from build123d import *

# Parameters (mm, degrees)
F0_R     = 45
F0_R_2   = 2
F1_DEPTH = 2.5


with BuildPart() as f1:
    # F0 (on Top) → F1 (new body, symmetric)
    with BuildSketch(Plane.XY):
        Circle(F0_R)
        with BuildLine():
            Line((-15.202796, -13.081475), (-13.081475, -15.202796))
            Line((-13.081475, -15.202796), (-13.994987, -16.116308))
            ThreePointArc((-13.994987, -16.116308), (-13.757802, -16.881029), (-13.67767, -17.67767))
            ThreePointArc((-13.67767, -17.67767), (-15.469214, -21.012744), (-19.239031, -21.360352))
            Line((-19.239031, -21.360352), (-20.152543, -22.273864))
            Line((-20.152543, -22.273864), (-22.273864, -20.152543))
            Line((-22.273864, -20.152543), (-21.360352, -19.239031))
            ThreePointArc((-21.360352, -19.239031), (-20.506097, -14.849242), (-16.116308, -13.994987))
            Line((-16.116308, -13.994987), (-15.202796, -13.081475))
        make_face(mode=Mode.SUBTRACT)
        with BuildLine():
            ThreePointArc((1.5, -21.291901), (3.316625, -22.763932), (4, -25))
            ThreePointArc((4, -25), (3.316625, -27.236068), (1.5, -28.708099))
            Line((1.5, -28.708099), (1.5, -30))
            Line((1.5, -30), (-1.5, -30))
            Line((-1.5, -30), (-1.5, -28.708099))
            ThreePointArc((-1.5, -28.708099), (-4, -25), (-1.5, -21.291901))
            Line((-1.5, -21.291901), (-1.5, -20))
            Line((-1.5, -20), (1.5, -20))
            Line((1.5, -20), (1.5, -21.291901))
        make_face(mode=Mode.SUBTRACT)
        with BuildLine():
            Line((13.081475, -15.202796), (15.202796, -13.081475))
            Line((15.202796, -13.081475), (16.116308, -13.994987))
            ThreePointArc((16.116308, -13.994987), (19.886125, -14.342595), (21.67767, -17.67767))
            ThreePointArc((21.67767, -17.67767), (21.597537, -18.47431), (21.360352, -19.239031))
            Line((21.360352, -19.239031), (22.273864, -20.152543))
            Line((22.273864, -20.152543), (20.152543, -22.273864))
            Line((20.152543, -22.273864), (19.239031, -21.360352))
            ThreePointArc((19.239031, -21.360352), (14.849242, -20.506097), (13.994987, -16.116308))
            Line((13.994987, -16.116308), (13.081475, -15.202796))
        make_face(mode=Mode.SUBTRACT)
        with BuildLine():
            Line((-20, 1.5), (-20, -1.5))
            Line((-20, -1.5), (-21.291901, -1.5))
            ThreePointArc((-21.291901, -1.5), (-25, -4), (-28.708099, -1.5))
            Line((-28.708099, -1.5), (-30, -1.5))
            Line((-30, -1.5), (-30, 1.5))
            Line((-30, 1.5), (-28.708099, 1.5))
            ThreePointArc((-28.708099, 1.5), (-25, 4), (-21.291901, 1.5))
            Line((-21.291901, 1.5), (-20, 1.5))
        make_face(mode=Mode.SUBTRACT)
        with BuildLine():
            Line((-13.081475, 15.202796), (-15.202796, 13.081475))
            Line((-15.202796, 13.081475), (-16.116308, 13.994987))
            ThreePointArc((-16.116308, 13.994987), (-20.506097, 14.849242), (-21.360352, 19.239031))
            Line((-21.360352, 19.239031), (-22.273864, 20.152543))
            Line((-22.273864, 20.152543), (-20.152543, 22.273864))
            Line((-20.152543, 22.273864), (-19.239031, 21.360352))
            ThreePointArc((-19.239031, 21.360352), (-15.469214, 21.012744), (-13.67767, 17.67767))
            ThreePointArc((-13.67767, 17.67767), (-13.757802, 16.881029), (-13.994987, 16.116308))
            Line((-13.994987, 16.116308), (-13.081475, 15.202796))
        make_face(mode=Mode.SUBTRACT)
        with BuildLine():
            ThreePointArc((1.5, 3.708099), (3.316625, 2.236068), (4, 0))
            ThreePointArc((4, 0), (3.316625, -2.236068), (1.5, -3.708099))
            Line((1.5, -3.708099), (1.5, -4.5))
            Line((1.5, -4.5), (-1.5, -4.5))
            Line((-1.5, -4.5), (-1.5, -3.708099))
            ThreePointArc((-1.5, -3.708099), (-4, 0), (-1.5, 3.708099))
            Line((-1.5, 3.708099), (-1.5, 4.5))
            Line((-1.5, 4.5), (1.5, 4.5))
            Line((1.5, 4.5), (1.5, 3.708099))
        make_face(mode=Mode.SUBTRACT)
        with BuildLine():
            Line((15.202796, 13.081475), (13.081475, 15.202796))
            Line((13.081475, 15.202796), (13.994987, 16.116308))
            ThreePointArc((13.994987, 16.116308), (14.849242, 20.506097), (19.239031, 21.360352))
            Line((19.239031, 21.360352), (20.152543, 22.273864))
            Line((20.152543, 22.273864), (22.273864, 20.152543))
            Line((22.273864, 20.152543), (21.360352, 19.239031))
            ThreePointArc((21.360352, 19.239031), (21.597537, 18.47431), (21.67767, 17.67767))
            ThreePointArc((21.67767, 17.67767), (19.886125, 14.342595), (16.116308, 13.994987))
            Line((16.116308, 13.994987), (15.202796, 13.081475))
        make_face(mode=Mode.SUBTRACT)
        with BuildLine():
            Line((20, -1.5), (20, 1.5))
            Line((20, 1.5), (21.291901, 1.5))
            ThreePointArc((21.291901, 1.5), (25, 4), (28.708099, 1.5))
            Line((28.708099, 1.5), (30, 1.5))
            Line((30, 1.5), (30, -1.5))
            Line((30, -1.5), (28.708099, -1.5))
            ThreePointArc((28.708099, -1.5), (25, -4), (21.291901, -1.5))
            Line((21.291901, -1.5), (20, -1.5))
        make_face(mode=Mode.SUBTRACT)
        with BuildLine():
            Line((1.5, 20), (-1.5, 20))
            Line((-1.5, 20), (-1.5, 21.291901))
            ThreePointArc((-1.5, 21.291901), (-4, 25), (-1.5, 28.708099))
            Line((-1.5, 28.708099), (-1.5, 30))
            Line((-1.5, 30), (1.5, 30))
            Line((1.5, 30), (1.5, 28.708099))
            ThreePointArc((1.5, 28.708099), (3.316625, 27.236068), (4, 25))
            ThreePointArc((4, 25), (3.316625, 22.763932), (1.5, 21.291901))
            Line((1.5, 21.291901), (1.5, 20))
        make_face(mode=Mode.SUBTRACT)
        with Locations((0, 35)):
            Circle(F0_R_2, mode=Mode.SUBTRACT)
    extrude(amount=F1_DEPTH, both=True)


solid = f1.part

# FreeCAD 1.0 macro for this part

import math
import FreeCAD as App
import Part
import Sketcher

doc = App.newDocument("Part")
body = doc.addObject("PartDesign::Body", "Body")

# Sketch on XY plane
sketch1 = body.newObject("Sketcher::SketchObject", "Sketch")
sketch1.AttachmentSupport = (doc.getObject("XY_Plane"), [""])
sketch1.MapMode = "FlatFace"
sketch1.addGeometry([
    Part.Circle(App.Vector(0, 0, 0), App.Vector(0, 0, 1), 45),  # 0
    Part.LineSegment(App.Vector(-16.1, -14, 0), App.Vector(-15.2, -13.1, 0)),  # 1
    Part.LineSegment(App.Vector(-15.2, -13.1, 0), App.Vector(-13.1, -15.2, 0)),  # 2
    Part.LineSegment(App.Vector(-13.1, -15.2, 0), App.Vector(-14, -16.1, 0)),  # 3
    Part.ArcOfCircle(Part.Circle(App.Vector(-17.7, -17.7, 0), App.Vector(0, 0, 1), 4), math.radians(0), math.radians(23)),  # 4
    Part.ArcOfCircle(Part.Circle(App.Vector(-17.7, -17.7, 0), App.Vector(0, 0, 1), 4), math.radians(-113), math.radians(0)),  # 5
    Part.LineSegment(App.Vector(-19.2, -21.4, 0), App.Vector(-20.2, -22.3, 0)),  # 6
    Part.LineSegment(App.Vector(-20.2, -22.3, 0), App.Vector(-22.3, -20.2, 0)),  # 7
    Part.LineSegment(App.Vector(-22.3, -20.2, 0), App.Vector(-21.4, -19.2, 0)),  # 8
    Part.ArcOfCircle(Part.Circle(App.Vector(-17.7, -17.7, 0), App.Vector(0, 0, 1), 4), math.radians(67), math.radians(203)),  # 9
    Part.LineSegment(App.Vector(-21.3, 1.5, 0), App.Vector(-20, 1.5, 0)),  # 10
    Part.LineSegment(App.Vector(-20, 1.5, 0), App.Vector(-20, -1.5, 0)),  # 11
    Part.LineSegment(App.Vector(-20, -1.5, 0), App.Vector(-21.3, -1.5, 0)),  # 12
    Part.ArcOfCircle(Part.Circle(App.Vector(-25, 0, 0), App.Vector(0, 0, 1), 4), math.radians(-158), math.radians(-22)),  # 13
    Part.LineSegment(App.Vector(-28.7, -1.5, 0), App.Vector(-30, -1.5, 0)),  # 14
    Part.LineSegment(App.Vector(-30, -1.5, 0), App.Vector(-30, 1.5, 0)),  # 15
    Part.LineSegment(App.Vector(-30, 1.5, 0), App.Vector(-28.7, 1.5, 0)),  # 16
    Part.ArcOfCircle(Part.Circle(App.Vector(-25, 0, 0), App.Vector(0, 0, 1), 4), math.radians(22), math.radians(158)),  # 17
    Part.LineSegment(App.Vector(1.5, -20, 0), App.Vector(1.5, -21.3, 0)),  # 18
    Part.ArcOfCircle(Part.Circle(App.Vector(0, -25, 0), App.Vector(0, 0, 1), 4), math.radians(0), math.radians(68)),  # 19
    Part.ArcOfCircle(Part.Circle(App.Vector(0, -25, 0), App.Vector(0, 0, 1), 4), math.radians(-68), math.radians(0)),  # 20
    Part.LineSegment(App.Vector(1.5, -28.7, 0), App.Vector(1.5, -30, 0)),  # 21
    Part.LineSegment(App.Vector(1.5, -30, 0), App.Vector(-1.5, -30, 0)),  # 22
    Part.LineSegment(App.Vector(-1.5, -30, 0), App.Vector(-1.5, -28.7, 0)),  # 23
    Part.ArcOfCircle(Part.Circle(App.Vector(0, -25, 0), App.Vector(0, 0, 1), 4), math.radians(112), math.radians(248)),  # 24
    Part.LineSegment(App.Vector(-1.5, -21.3, 0), App.Vector(-1.5, -20, 0)),  # 25
    Part.LineSegment(App.Vector(-1.5, -20, 0), App.Vector(1.5, -20, 0)),  # 26
    Part.LineSegment(App.Vector(14, -16.1, 0), App.Vector(13.1, -15.2, 0)),  # 27
    Part.LineSegment(App.Vector(13.1, -15.2, 0), App.Vector(15.2, -13.1, 0)),  # 28
    Part.LineSegment(App.Vector(15.2, -13.1, 0), App.Vector(16.1, -14, 0)),  # 29
    Part.ArcOfCircle(Part.Circle(App.Vector(17.7, -17.7, 0), App.Vector(0, 0, 1), 4), math.radians(0), math.radians(113)),  # 30
    Part.ArcOfCircle(Part.Circle(App.Vector(17.7, -17.7, 0), App.Vector(0, 0, 1), 4), math.radians(-23), math.radians(0)),  # 31
    Part.LineSegment(App.Vector(21.4, -19.2, 0), App.Vector(22.3, -20.2, 0)),  # 32
    Part.LineSegment(App.Vector(22.3, -20.2, 0), App.Vector(20.2, -22.3, 0)),  # 33
    Part.LineSegment(App.Vector(20.2, -22.3, 0), App.Vector(19.2, -21.4, 0)),  # 34
    Part.ArcOfCircle(Part.Circle(App.Vector(17.7, -17.7, 0), App.Vector(0, 0, 1), 4), math.radians(157), math.radians(293)),  # 35
    Part.LineSegment(App.Vector(1.5, 4.5, 0), App.Vector(1.5, 3.7, 0)),  # 36
    Part.ArcOfCircle(Part.Circle(App.Vector(0, 0, 0), App.Vector(0, 0, 1), 4), math.radians(0), math.radians(68)),  # 37
    Part.ArcOfCircle(Part.Circle(App.Vector(0, 0, 0), App.Vector(0, 0, 1), 4), math.radians(-68), math.radians(0)),  # 38
    Part.LineSegment(App.Vector(1.5, -3.7, 0), App.Vector(1.5, -4.5, 0)),  # 39
    Part.LineSegment(App.Vector(1.5, -4.5, 0), App.Vector(-1.5, -4.5, 0)),  # 40
    Part.LineSegment(App.Vector(-1.5, -4.5, 0), App.Vector(-1.5, -3.7, 0)),  # 41
    Part.ArcOfCircle(Part.Circle(App.Vector(0, 0, 0), App.Vector(0, 0, 1), 4), math.radians(112), math.radians(248)),  # 42
    Part.LineSegment(App.Vector(-1.5, 3.7, 0), App.Vector(-1.5, 4.5, 0)),  # 43
    Part.LineSegment(App.Vector(-1.5, 4.5, 0), App.Vector(1.5, 4.5, 0)),  # 44
    Part.LineSegment(App.Vector(21.3, -1.5, 0), App.Vector(20, -1.5, 0)),  # 45
    Part.LineSegment(App.Vector(20, -1.5, 0), App.Vector(20, 1.5, 0)),  # 46
    Part.LineSegment(App.Vector(20, 1.5, 0), App.Vector(21.3, 1.5, 0)),  # 47
    Part.ArcOfCircle(Part.Circle(App.Vector(25, 0, 0), App.Vector(0, 0, 1), 4), math.radians(22), math.radians(158)),  # 48
    Part.LineSegment(App.Vector(28.7, 1.5, 0), App.Vector(30, 1.5, 0)),  # 49
    Part.LineSegment(App.Vector(30, 1.5, 0), App.Vector(30, -1.5, 0)),  # 50
    Part.LineSegment(App.Vector(30, -1.5, 0), App.Vector(28.7, -1.5, 0)),  # 51
    Part.ArcOfCircle(Part.Circle(App.Vector(25, 0, 0), App.Vector(0, 0, 1), 4), math.radians(-158), math.radians(-22)),  # 52
    Part.LineSegment(App.Vector(-14, 16.1, 0), App.Vector(-13.1, 15.2, 0)),  # 53
    Part.LineSegment(App.Vector(-13.1, 15.2, 0), App.Vector(-15.2, 13.1, 0)),  # 54
    Part.LineSegment(App.Vector(-15.2, 13.1, 0), App.Vector(-16.1, 14, 0)),  # 55
    Part.ArcOfCircle(Part.Circle(App.Vector(-17.7, 17.7, 0), App.Vector(0, 0, 1), 4), math.radians(157), math.radians(293)),  # 56
    Part.LineSegment(App.Vector(-21.4, 19.2, 0), App.Vector(-22.3, 20.2, 0)),  # 57
    Part.LineSegment(App.Vector(-22.3, 20.2, 0), App.Vector(-20.2, 22.3, 0)),  # 58
    Part.LineSegment(App.Vector(-20.2, 22.3, 0), App.Vector(-19.2, 21.4, 0)),  # 59
    Part.ArcOfCircle(Part.Circle(App.Vector(-17.7, 17.7, 0), App.Vector(0, 0, 1), 4), math.radians(0), math.radians(113)),  # 60
    Part.ArcOfCircle(Part.Circle(App.Vector(-17.7, 17.7, 0), App.Vector(0, 0, 1), 4), math.radians(-23), math.radians(0)),  # 61
    Part.LineSegment(App.Vector(16.1, 14, 0), App.Vector(15.2, 13.1, 0)),  # 62
    Part.LineSegment(App.Vector(15.2, 13.1, 0), App.Vector(13.1, 15.2, 0)),  # 63
    Part.LineSegment(App.Vector(13.1, 15.2, 0), App.Vector(14, 16.1, 0)),  # 64
    Part.ArcOfCircle(Part.Circle(App.Vector(17.7, 17.7, 0), App.Vector(0, 0, 1), 4), math.radians(67), math.radians(203)),  # 65
    Part.LineSegment(App.Vector(19.2, 21.4, 0), App.Vector(20.2, 22.3, 0)),  # 66
    Part.LineSegment(App.Vector(20.2, 22.3, 0), App.Vector(22.3, 20.2, 0)),  # 67
    Part.LineSegment(App.Vector(22.3, 20.2, 0), App.Vector(21.4, 19.2, 0)),  # 68
    Part.ArcOfCircle(Part.Circle(App.Vector(17.7, 17.7, 0), App.Vector(0, 0, 1), 4), math.radians(0), math.radians(23)),  # 69
    Part.ArcOfCircle(Part.Circle(App.Vector(17.7, 17.7, 0), App.Vector(0, 0, 1), 4), math.radians(-113), math.radians(0)),  # 70
    Part.LineSegment(App.Vector(1.5, 21.3, 0), App.Vector(1.5, 20, 0)),  # 71
    Part.LineSegment(App.Vector(1.5, 20, 0), App.Vector(-1.5, 20, 0)),  # 72
    Part.LineSegment(App.Vector(-1.5, 20, 0), App.Vector(-1.5, 21.3, 0)),  # 73
    Part.ArcOfCircle(Part.Circle(App.Vector(0, 25, 0), App.Vector(0, 0, 1), 4), math.radians(112), math.radians(248)),  # 74
    Part.LineSegment(App.Vector(-1.5, 28.7, 0), App.Vector(-1.5, 30, 0)),  # 75
    Part.LineSegment(App.Vector(-1.5, 30, 0), App.Vector(1.5, 30, 0)),  # 76
    Part.LineSegment(App.Vector(1.5, 30, 0), App.Vector(1.5, 28.7, 0)),  # 77
    Part.ArcOfCircle(Part.Circle(App.Vector(0, 25, 0), App.Vector(0, 0, 1), 4), math.radians(0), math.radians(68)),  # 78
    Part.ArcOfCircle(Part.Circle(App.Vector(0, 25, 0), App.Vector(0, 0, 1), 4), math.radians(-68), math.radians(0)),  # 79
    Part.Circle(App.Vector(0, 35, 0), App.Vector(0, 0, 1), 2),  # 80
], False)
sketch1.addConstraint([
    Sketcher.Constraint("Coincident", 1, 2, 2, 1),
    Sketcher.Constraint("Coincident", 2, 2, 3, 1),
    Sketcher.Constraint("Coincident", 3, 2, 4, 2),
    Sketcher.Constraint("Tangent", 4, 1, 5, 2),
    Sketcher.Constraint("Coincident", 5, 1, 6, 1),
    Sketcher.Constraint("Coincident", 6, 2, 7, 1),
    Sketcher.Constraint("Coincident", 7, 2, 8, 1),
    Sketcher.Constraint("Coincident", 8, 2, 9, 2),
    Sketcher.Constraint("Coincident", 9, 1, 1, 1),
    Sketcher.Constraint("Coincident", 10, 2, 11, 1),
    Sketcher.Constraint("Coincident", 11, 2, 12, 1),
    Sketcher.Constraint("Coincident", 12, 2, 13, 2),
    Sketcher.Constraint("Coincident", 13, 1, 14, 1),
    Sketcher.Constraint("Coincident", 14, 2, 15, 1),
    Sketcher.Constraint("Coincident", 15, 2, 16, 1),
    Sketcher.Constraint("Coincident", 16, 2, 17, 2),
    Sketcher.Constraint("Coincident", 17, 1, 10, 1),
    Sketcher.Constraint("Coincident", 18, 2, 19, 2),
    Sketcher.Constraint("Tangent", 19, 1, 20, 2),
    Sketcher.Constraint("Coincident", 20, 1, 21, 1),
    Sketcher.Constraint("Coincident", 21, 2, 22, 1),
    Sketcher.Constraint("Coincident", 22, 2, 23, 1),
    Sketcher.Constraint("Coincident", 23, 2, 24, 2),
    Sketcher.Constraint("Coincident", 24, 1, 25, 1),
    Sketcher.Constraint("Coincident", 25, 2, 26, 1),
    Sketcher.Constraint("Coincident", 26, 2, 18, 1),
    Sketcher.Constraint("Coincident", 27, 2, 28, 1),
    Sketcher.Constraint("Coincident", 28, 2, 29, 1),
    Sketcher.Constraint("Coincident", 29, 2, 30, 2),
    Sketcher.Constraint("Coincident", 30, 1, 31, 2),
    Sketcher.Constraint("Coincident", 31, 1, 32, 1),
    Sketcher.Constraint("Coincident", 32, 2, 33, 1),
    Sketcher.Constraint("Coincident", 33, 2, 34, 1),
    Sketcher.Constraint("Coincident", 34, 2, 35, 2),
    Sketcher.Constraint("Coincident", 35, 1, 27, 1),
    Sketcher.Constraint("Coincident", 36, 2, 37, 2),
    Sketcher.Constraint("Tangent", 37, 1, 38, 2),
    Sketcher.Constraint("Coincident", 38, 1, 39, 1),
    Sketcher.Constraint("Coincident", 39, 2, 40, 1),
    Sketcher.Constraint("Coincident", 40, 2, 41, 1),
    Sketcher.Constraint("Coincident", 41, 2, 42, 2),
    Sketcher.Constraint("Coincident", 42, 1, 43, 1),
    Sketcher.Constraint("Coincident", 43, 2, 44, 1),
    Sketcher.Constraint("Coincident", 44, 2, 36, 1),
    Sketcher.Constraint("Coincident", 45, 2, 46, 1),
    Sketcher.Constraint("Coincident", 46, 2, 47, 1),
    Sketcher.Constraint("Coincident", 47, 2, 48, 2),
    Sketcher.Constraint("Coincident", 48, 1, 49, 1),
    Sketcher.Constraint("Coincident", 49, 2, 50, 1),
    Sketcher.Constraint("Coincident", 50, 2, 51, 1),
    Sketcher.Constraint("Coincident", 51, 2, 52, 2),
    Sketcher.Constraint("Coincident", 52, 1, 45, 1),
    Sketcher.Constraint("Coincident", 53, 2, 54, 1),
    Sketcher.Constraint("Coincident", 54, 2, 55, 1),
    Sketcher.Constraint("Coincident", 55, 2, 56, 2),
    Sketcher.Constraint("Coincident", 56, 1, 57, 1),
    Sketcher.Constraint("Coincident", 57, 2, 58, 1),
    Sketcher.Constraint("Coincident", 58, 2, 59, 1),
    Sketcher.Constraint("Coincident", 59, 2, 60, 2),
    Sketcher.Constraint("Tangent", 60, 1, 61, 2),
    Sketcher.Constraint("Coincident", 61, 1, 53, 1),
    Sketcher.Constraint("Coincident", 62, 2, 63, 1),
    Sketcher.Constraint("Coincident", 63, 2, 64, 1),
    Sketcher.Constraint("Coincident", 64, 2, 65, 2),
    Sketcher.Constraint("Coincident", 65, 1, 66, 1),
    Sketcher.Constraint("Coincident", 66, 2, 67, 1),
    Sketcher.Constraint("Coincident", 67, 2, 68, 1),
    Sketcher.Constraint("Coincident", 68, 2, 69, 2),
    Sketcher.Constraint("Coincident", 69, 1, 70, 2),
    Sketcher.Constraint("Coincident", 70, 1, 62, 1),
    Sketcher.Constraint("Coincident", 71, 2, 72, 1),
    Sketcher.Constraint("Coincident", 72, 2, 73, 1),
    Sketcher.Constraint("Coincident", 73, 2, 74, 2),
    Sketcher.Constraint("Coincident", 74, 1, 75, 1),
    Sketcher.Constraint("Coincident", 75, 2, 76, 1),
    Sketcher.Constraint("Coincident", 76, 2, 77, 1),
    Sketcher.Constraint("Coincident", 77, 2, 78, 2),
    Sketcher.Constraint("Tangent", 78, 1, 79, 2),
    Sketcher.Constraint("Coincident", 79, 1, 71, 1),
    Sketcher.Constraint("Horizontal", 10),
    Sketcher.Constraint("Vertical", 11),
    Sketcher.Constraint("Horizontal", 12),
    Sketcher.Constraint("Horizontal", 14),
    Sketcher.Constraint("Vertical", 15),
    Sketcher.Constraint("Horizontal", 16),
    Sketcher.Constraint("Vertical", 18),
    Sketcher.Constraint("Vertical", 21),
    Sketcher.Constraint("Horizontal", 22),
    Sketcher.Constraint("Vertical", 23),
    Sketcher.Constraint("Vertical", 25),
    Sketcher.Constraint("Horizontal", 26),
    Sketcher.Constraint("Vertical", 36),
    Sketcher.Constraint("Vertical", 39),
    Sketcher.Constraint("Horizontal", 40),
    Sketcher.Constraint("Vertical", 41),
    Sketcher.Constraint("Vertical", 43),
    Sketcher.Constraint("Horizontal", 44),
    Sketcher.Constraint("Horizontal", 45),
    Sketcher.Constraint("Vertical", 46),
    Sketcher.Constraint("Horizontal", 47),
    Sketcher.Constraint("Horizontal", 49),
    Sketcher.Constraint("Vertical", 50),
    Sketcher.Constraint("Horizontal", 51),
    Sketcher.Constraint("Vertical", 71),
    Sketcher.Constraint("Horizontal", 72),
    Sketcher.Constraint("Vertical", 73),
    Sketcher.Constraint("Vertical", 75),
    Sketcher.Constraint("Horizontal", 76),
    Sketcher.Constraint("Vertical", 77),
    Sketcher.Constraint("Coincident", 0, 3, -1, 1),
    Sketcher.Constraint("Coincident", 37, 3, -1, 1),
    Sketcher.Constraint("Coincident", 42, 3, -1, 1),
    Sketcher.Constraint("Coincident", 9, 3, 4, 3),
    Sketcher.Constraint("Coincident", 17, 3, 13, 3),
    Sketcher.Constraint("Coincident", 24, 3, 19, 3),
    Sketcher.Constraint("Coincident", 35, 3, 30, 3),
    Sketcher.Constraint("Coincident", 52, 3, 48, 3),
    Sketcher.Constraint("Coincident", 60, 3, 56, 3),
    Sketcher.Constraint("Coincident", 70, 3, 65, 3),
    Sketcher.Constraint("Coincident", 78, 3, 74, 3),
    Sketcher.Constraint("Equal", 5, 9),
    Sketcher.Constraint("Equal", 9, 13),
    Sketcher.Constraint("Equal", 13, 17),
    Sketcher.Constraint("Equal", 17, 19),
    Sketcher.Constraint("Equal", 19, 20),
    Sketcher.Constraint("Equal", 20, 24),
    Sketcher.Constraint("Equal", 24, 30),
    Sketcher.Constraint("Equal", 30, 35),
    Sketcher.Constraint("Equal", 35, 37),
    Sketcher.Constraint("Equal", 37, 38),
    Sketcher.Constraint("Equal", 38, 42),
    Sketcher.Constraint("Equal", 42, 48),
    Sketcher.Constraint("Equal", 48, 52),
    Sketcher.Constraint("Equal", 52, 56),
    Sketcher.Constraint("Equal", 56, 60),
    Sketcher.Constraint("Equal", 4, 61),
    Sketcher.Constraint("Equal", 60, 65),
    Sketcher.Constraint("Equal", 31, 69),
    Sketcher.Constraint("Equal", 65, 70),
    Sketcher.Constraint("Equal", 70, 74),
    Sketcher.Constraint("Equal", 74, 78),
    Sketcher.Constraint("Equal", 78, 79),
    Sketcher.Constraint("Symmetric", 13, 3, 48, 3, -1, 1),
    Sketcher.Constraint("Symmetric", 30, 3, 56, 3, -1, 1),
    Sketcher.Constraint("Symmetric", 4, 3, 65, 3, -1, 1),
    Sketcher.Constraint("Symmetric", 19, 3, 74, 3, -1, 1),
    Sketcher.Constraint("Symmetric", 39, 2, 43, 2, -1, 1),
    Sketcher.Constraint("Symmetric", 10, 2, 45, 2, -1, 1),
    Sketcher.Constraint("Symmetric", 14, 2, 49, 2, -1, 1),
    Sketcher.Constraint("Symmetric", 27, 2, 53, 2, -1, 1),
    Sketcher.Constraint("Symmetric", 28, 2, 54, 2, -1, 1),
    Sketcher.Constraint("Symmetric", 31, 1, 56, 1, -1, 1),
    Sketcher.Constraint("Symmetric", 32, 2, 57, 2, -1, 1),
    Sketcher.Constraint("Symmetric", 33, 2, 58, 2, -1, 1),
    Sketcher.Constraint("Symmetric", 35, 1, 61, 1, -1, 1),
    Sketcher.Constraint("Symmetric", 1, 2, 62, 2, -1, 1),
    Sketcher.Constraint("Symmetric", 2, 2, 63, 2, -1, 1),
    Sketcher.Constraint("Symmetric", 6, 2, 66, 2, -1, 1),
    Sketcher.Constraint("Symmetric", 7, 2, 67, 2, -1, 1),
    Sketcher.Constraint("Symmetric", 8, 2, 68, 2, -1, 1),
    Sketcher.Constraint("Symmetric", 25, 2, 71, 2, -1, 1),
    Sketcher.Constraint("Symmetric", 21, 2, 75, 2, -1, 1),
    Sketcher.Constraint("Symmetric", 4, 3, 30, 3, -2),
    Sketcher.Constraint("Symmetric", 20, 1, 23, 2, -2),
    Sketcher.Constraint("Symmetric", 2, 2, 27, 2, -2),
    Sketcher.Constraint("Symmetric", 1, 2, 28, 2, -2),
    Sketcher.Constraint("Symmetric", 7, 2, 32, 2, -2),
    Sketcher.Constraint("Symmetric", 6, 2, 33, 2, -2),
    Sketcher.Constraint("Symmetric", 17, 1, 47, 2, -2),
    Sketcher.Constraint("PointOnObject", 80, 3, -2),
    Sketcher.Constraint("PointOnObject", 37, 1, -1),
    Sketcher.Constraint("Perpendicular", 1, 2),
    Sketcher.Constraint("Perpendicular", 2, 3),
    Sketcher.Constraint("Parallel", 3, 6),
    Sketcher.Constraint("Perpendicular", 6, 7),
    Sketcher.Constraint("Perpendicular", 7, 8),
    Sketcher.Constraint("Perpendicular", 8, 27),
    Sketcher.Constraint("Perpendicular", 27, 28),
    Sketcher.Constraint("Perpendicular", 28, 29),
    Sketcher.Constraint("Parallel", 29, 32),
    Sketcher.Constraint("Perpendicular", 33, 34),
    Sketcher.Constraint("Perpendicular", 54, 55),
    Sketcher.Constraint("Perpendicular", 58, 59),
    Sketcher.Constraint("Perpendicular", 59, 62),
    Sketcher.Constraint("Perpendicular", 63, 64),
    Sketcher.Constraint("Parallel", 64, 66),
    Sketcher.Constraint("Horizontal", 35, 3, 4, 1),
    Sketcher.Constraint("Horizontal", 12, 2, 13, 1),
    Sketcher.Constraint("Horizontal", 10, 2, 15, 2),
    Sketcher.Constraint("Horizontal", 24, 3, 19, 1),
    Sketcher.Constraint("Horizontal", 18, 2, 24, 1),
    Sketcher.Constraint("Horizontal", 4, 1, 30, 1),
    Sketcher.Constraint("Horizontal", 38, 1, 41, 2),
    Sketcher.Constraint("Horizontal", 36, 2, 42, 1),
    Sketcher.Constraint("Horizontal", 14, 2, 45, 2),
    Sketcher.Constraint("Horizontal", 45, 2, 50, 2),
    Sketcher.Constraint("Horizontal", 70, 3, 60, 1),
    Sketcher.Constraint("Horizontal", 60, 1, 69, 1),
    Sketcher.Constraint("Horizontal", 74, 1, 77, 2),
    Sketcher.Constraint("Horizontal", 79, 3, 78, 1),
    Sketcher.Constraint("Horizontal", 73, 2, 79, 1),
    Sketcher.Constraint("Vertical", 18, 2, 20, 1),
    Sketcher.Constraint("Vertical", 26, 2, 36, 2),
    Sketcher.Constraint("Equal", 12, 14),
    Sketcher.Constraint("Equal", 76, 11),
    Sketcher.Constraint("Equal", 51, 18),
    Sketcher.Constraint("Equal", 18, 21),
    Sketcher.Constraint("Equal", 1, 3),
    Sketcher.Constraint("Equal", 3, 6),
    Sketcher.Constraint("Equal", 2, 7),
    Sketcher.Constraint("Equal", 6, 8),
    Sketcher.Constraint("Diameter", 0, 90.0),
    Sketcher.Constraint("Diameter", 80, 4.0),
    Sketcher.Constraint("Radius", 5, 4.0),
    Sketcher.Constraint("DistanceX", 22, 2, 22, 1, 3.0),
    Sketcher.Constraint("Distance", 2, 3.000001),
    Sketcher.Constraint("DistanceX", 13, 3, -1, 1, 25.0),
    Sketcher.Constraint("DistanceY", 19, 3, -1, 1, 24.999999),
    Sketcher.Constraint("DistanceY", -1, 1, 80, 3, 35.0),
    Sketcher.Constraint("DistanceX", 10, 2, -1, 1, 20.0),
    Sketcher.Constraint("DistanceY", 39, 2, -1, 1, 4.5),
    Sketcher.Constraint("Radius", 31, 4.000029),
    Sketcher.Constraint("Distance", 1, 1.291901),
    Sketcher.Constraint("DistanceY", 4, 3, -1, 1, 17.677669),
    Sketcher.Constraint("DistanceX", 5, 3, -1, 1, 17.67767),
])
pad1 = body.newObject("PartDesign::Pad", "Pad")
pad1.Profile = sketch1
pad1.Length = 5
pad1.Midplane = True

doc.recompute()
